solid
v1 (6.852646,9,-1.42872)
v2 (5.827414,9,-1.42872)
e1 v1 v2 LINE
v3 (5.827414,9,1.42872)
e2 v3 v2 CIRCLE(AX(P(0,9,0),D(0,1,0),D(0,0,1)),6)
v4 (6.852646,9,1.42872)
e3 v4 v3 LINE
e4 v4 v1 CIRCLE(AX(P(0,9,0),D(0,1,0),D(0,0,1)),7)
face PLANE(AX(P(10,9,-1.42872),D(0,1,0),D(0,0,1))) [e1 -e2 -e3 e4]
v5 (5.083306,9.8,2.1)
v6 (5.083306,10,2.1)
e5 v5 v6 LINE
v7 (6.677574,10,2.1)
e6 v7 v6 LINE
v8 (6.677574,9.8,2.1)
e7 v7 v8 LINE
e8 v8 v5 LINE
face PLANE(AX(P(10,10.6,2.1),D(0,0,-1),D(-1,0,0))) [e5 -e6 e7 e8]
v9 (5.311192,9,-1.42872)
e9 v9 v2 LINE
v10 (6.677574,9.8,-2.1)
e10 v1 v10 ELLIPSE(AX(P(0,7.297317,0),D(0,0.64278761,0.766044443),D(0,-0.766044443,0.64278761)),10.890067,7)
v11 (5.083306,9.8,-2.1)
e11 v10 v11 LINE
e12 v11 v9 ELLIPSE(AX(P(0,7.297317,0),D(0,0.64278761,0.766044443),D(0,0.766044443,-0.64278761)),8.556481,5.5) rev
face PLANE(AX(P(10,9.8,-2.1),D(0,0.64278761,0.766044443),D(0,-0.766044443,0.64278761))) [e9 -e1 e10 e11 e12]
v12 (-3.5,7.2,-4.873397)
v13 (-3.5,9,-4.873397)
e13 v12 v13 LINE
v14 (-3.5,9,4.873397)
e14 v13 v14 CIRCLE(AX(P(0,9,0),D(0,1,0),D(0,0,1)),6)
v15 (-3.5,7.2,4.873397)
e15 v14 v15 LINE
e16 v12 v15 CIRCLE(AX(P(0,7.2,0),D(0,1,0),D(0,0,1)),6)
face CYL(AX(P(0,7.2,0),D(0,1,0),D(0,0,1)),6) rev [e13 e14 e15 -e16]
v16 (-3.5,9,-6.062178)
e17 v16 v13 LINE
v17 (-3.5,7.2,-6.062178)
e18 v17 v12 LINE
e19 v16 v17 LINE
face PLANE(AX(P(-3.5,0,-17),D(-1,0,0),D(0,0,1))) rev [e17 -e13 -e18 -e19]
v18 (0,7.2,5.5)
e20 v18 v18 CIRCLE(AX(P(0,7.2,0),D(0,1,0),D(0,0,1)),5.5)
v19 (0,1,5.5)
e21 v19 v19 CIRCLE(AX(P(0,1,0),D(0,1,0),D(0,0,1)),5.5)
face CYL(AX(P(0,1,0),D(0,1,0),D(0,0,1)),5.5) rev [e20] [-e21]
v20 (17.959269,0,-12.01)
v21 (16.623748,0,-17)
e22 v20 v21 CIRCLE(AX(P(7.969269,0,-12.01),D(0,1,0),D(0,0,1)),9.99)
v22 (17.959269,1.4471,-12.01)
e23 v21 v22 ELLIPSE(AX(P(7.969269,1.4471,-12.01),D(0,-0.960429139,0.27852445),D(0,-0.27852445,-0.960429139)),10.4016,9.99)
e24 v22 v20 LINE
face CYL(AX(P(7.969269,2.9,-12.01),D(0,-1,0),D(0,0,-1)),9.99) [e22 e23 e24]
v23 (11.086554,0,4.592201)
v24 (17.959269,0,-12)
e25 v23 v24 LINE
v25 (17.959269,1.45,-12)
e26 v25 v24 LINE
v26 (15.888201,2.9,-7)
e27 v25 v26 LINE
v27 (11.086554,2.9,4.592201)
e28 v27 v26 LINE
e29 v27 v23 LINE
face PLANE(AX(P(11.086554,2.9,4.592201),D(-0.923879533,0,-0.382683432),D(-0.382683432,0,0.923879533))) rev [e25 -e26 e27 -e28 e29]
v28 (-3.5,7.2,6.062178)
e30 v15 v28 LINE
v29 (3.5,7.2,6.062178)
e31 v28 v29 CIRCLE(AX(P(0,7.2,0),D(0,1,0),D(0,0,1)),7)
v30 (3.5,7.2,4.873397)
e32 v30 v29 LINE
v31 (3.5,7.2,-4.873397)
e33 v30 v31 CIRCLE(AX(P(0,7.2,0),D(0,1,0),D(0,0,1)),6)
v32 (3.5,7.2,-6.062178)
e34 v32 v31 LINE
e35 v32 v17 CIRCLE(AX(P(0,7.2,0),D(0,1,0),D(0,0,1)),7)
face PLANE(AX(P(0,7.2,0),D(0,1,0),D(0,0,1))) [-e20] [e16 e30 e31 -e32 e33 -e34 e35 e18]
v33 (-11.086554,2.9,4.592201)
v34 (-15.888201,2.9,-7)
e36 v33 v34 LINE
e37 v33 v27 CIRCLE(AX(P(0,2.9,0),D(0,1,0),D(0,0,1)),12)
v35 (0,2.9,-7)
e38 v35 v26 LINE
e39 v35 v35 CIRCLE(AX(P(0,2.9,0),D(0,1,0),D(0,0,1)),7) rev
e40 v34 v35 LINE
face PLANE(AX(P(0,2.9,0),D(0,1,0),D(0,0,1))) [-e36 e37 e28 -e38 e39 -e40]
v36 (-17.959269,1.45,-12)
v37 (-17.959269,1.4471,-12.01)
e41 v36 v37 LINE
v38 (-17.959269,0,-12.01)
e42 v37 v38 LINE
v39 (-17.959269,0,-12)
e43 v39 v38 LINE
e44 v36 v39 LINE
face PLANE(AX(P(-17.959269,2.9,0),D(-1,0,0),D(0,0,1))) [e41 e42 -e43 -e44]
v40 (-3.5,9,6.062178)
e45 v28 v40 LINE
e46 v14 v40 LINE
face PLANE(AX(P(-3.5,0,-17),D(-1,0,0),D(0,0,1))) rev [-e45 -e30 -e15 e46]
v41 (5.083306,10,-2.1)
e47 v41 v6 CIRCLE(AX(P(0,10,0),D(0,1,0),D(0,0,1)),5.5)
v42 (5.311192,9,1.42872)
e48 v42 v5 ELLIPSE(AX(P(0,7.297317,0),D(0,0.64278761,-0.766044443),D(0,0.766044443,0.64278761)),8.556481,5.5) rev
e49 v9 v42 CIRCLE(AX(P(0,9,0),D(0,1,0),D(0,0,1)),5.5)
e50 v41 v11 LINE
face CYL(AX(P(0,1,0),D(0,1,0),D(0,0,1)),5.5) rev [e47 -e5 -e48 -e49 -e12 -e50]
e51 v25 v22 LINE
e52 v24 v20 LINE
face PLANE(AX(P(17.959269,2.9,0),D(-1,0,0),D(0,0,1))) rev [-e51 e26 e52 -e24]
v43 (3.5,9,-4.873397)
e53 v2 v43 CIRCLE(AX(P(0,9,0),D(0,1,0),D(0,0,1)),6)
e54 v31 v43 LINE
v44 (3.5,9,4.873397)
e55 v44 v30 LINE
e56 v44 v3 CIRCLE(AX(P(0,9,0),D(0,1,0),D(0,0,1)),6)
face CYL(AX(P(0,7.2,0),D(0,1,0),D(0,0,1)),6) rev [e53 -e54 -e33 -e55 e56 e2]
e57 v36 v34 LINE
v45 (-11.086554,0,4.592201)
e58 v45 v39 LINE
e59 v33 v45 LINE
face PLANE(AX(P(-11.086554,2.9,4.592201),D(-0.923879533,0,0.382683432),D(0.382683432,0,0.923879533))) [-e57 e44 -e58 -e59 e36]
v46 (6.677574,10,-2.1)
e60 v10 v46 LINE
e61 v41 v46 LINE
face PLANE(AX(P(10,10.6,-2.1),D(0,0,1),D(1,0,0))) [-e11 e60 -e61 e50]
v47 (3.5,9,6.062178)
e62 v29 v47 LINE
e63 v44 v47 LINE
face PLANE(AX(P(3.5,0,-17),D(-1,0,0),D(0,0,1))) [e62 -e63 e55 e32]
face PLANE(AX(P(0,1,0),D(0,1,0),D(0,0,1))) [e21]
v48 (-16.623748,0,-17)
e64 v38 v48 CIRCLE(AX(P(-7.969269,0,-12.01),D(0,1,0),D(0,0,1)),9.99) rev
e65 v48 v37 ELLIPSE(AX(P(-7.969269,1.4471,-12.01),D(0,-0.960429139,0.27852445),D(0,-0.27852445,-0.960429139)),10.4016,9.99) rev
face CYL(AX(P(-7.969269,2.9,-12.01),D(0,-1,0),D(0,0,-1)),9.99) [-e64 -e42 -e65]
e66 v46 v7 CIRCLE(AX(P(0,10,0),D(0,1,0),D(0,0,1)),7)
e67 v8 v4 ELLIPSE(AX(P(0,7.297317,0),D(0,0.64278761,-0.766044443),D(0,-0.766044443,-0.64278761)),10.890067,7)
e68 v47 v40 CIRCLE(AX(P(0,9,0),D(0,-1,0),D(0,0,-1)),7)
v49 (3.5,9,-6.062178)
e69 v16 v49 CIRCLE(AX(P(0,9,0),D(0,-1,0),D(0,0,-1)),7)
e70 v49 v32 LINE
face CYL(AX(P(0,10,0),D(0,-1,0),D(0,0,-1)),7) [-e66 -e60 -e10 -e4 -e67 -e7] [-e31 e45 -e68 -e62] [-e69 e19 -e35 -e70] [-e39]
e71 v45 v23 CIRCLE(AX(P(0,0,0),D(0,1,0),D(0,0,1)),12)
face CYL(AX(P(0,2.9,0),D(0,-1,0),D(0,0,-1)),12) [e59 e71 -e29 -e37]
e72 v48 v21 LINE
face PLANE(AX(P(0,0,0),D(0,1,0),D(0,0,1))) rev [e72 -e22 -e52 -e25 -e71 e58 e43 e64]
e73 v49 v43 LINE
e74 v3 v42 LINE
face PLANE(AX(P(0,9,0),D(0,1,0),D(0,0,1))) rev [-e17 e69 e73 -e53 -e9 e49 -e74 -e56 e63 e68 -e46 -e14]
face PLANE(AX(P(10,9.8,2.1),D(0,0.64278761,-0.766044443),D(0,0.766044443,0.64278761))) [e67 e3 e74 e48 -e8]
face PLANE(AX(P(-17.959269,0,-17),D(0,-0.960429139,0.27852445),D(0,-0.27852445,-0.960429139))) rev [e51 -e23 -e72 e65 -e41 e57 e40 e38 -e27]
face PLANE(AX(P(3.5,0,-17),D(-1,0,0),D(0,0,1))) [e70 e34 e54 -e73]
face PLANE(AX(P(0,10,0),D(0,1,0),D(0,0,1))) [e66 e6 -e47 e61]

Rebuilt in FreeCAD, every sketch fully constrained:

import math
import FreeCAD as App
import Part
import Sketcher

V = App.Vector
Q = App.Units.Quantity


def add_polygon(sketch, points):
    """Adds a closed chain of lines whose ends are joined by coincident constraints."""
    first, n = sketch.GeometryCount, len(points)
    for a, b in zip(points, points[1:] + points[:1]):
        sketch.addGeometry(Part.LineSegment(App.Vector(*a, 0), App.Vector(*b, 0)), False)
    for i in range(n):
        sketch.addConstraint(Sketcher.Constraint("Coincident", first + i, 2, first + (i + 1) % n, 1))

doc = App.newDocument("Part")
params = doc.addObject("Spreadsheet::Sheet", "Params")
for row, (alias, value) in enumerate([
    ("sketch1_radius", "12 mm"),
    ("sketch1_radius2", "9.99 mm"),
    ("sketch1_height", "0.01 mm"),
    ("pad1_length", "2.9 mm"),
    ("sketch2_diameter", "14 mm"),
    ("pad2_length", "10 mm"),
    ("sketch3_diameter", "11 mm"),
    ("pocket1_length", "9 mm"),
    ("sketch4_diameter", "12 mm"),
    ("sketch4_diameter2", "11 mm"),
    ("pocket2_length", "1.8 mm"),
    ("sketch5_width", "7 mm"),
    ("sketch5_height", "1.8 mm"),
    ("sketch6_height", "10 mm"),
    ("sketch6_width", "2.9 mm"),
    ("sketch7_width", "0.8 mm"),
    ("sketch7_height", "4.2 mm"),
    ("pocket5_length", "10 mm"),
], start=1):
    params.set(f"A{row}", alias)
    params.set(f"B{row}", "=" + value)
    params.setAlias(f"B{row}", alias)

body = doc.addObject("PartDesign::Body", "Body")

# Sketch on XZ plane
sketch1 = doc.addObject("Sketcher::SketchObject", "Sketch")
body.addObject(sketch1)
sketch1.AttachmentSupport = (doc.XZ_Plane, [""])
sketch1.MapMode = "FlatFace"
sketch1.addGeometry(Part.LineSegment(V(-17.959, -12, 0), V(-11.087, 4.592, 0)), False)
sketch1.addGeometry(Part.ArcOfCircle(Part.Circle(V(0, 0, 0), V(0, 0, 1), 12), math.radians(22), math.radians(157)), False)
sketch1.addGeometry(Part.LineSegment(V(11.087, 4.592, 0), V(17.959, -12, 0)), False)
sketch1.addGeometry(Part.LineSegment(V(17.959, -12, 0), V(17.959, -12.01, 0)), False)
sketch1.addGeometry(Part.ArcOfCircle(Part.Circle(V(7.969, -12.01, 0), V(0, 0, 1), 9.99), math.radians(-30), math.radians(0)), False)
sketch1.addGeometry(Part.LineSegment(V(16.624, -17, 0), V(-16.624, -17, 0)), False)
sketch1.addGeometry(Part.ArcOfCircle(Part.Circle(V(-7.969, -12.01, 0), V(0, 0, 1), 9.99), math.radians(180), math.radians(210)), False)
sketch1.addGeometry(Part.LineSegment(V(-17.959, -12.01, 0), V(-17.959, -12, 0)), False)
sketch1.addConstraint(Sketcher.Constraint("Tangent", 0, 2, 1, 2))
sketch1.addConstraint(Sketcher.Constraint("Tangent", 1, 1, 2, 1))
sketch1.addConstraint(Sketcher.Constraint("Coincident", 2, 2, 3, 1))
sketch1.addConstraint(Sketcher.Constraint("Tangent", 3, 2, 4, 2))
sketch1.addConstraint(Sketcher.Constraint("Coincident", 4, 1, 5, 1))
sketch1.addConstraint(Sketcher.Constraint("Coincident", 5, 2, 6, 2))
sketch1.addConstraint(Sketcher.Constraint("Tangent", 6, 1, 7, 1))
sketch1.addConstraint(Sketcher.Constraint("Coincident", 7, 2, 0, 1))
sketch1.addConstraint(Sketcher.Constraint("Horizontal", 5))
sketch1.addConstraint(Sketcher.Constraint("Coincident", 1, 3, -1, 1))
sketch1.addConstraint(Sketcher.Constraint("Equal", 4, 6))
sketch1.addConstraint(Sketcher.Constraint("Symmetric", 4, 3, 6, 3, -2))
sketch1.addConstraint(Sketcher.Constraint("Horizontal", 0, 2, 1, 1))
sketch1.addConstraint(Sketcher.Constraint("Horizontal", 6, 3, 3, 2))
sketch1.addConstraint(Sketcher.Constraint("Horizontal", 3, 2, 6, 1))
sketch1.addConstraint(Sketcher.Constraint("Radius", 1, Q("12 mm")))
sketch1.addConstraint(Sketcher.Constraint("Radius", 4, Q("9.99 mm")))
sketch1.addConstraint(Sketcher.Constraint("DistanceY", 2, 2, -1, 1, Q("12 mm")))
sketch1.addConstraint(Sketcher.Constraint("DistanceY", 4, 1, -1, 1, Q("17 mm")))
sketch1.addConstraint(Sketcher.Constraint("Angle", 0, Q("67.5 deg")))
sketch1.addConstraint(Sketcher.Constraint("DistanceY", 3, 2, 3, 1, Q("0.01 mm")))
sketch1.setExpression("Constraints[15]", "Params.sketch1_radius")
sketch1.setExpression("Constraints[16]", "Params.sketch1_radius2")
sketch1.setExpression("Constraints[20]", "Params.sketch1_height")
pad1 = doc.addObject("PartDesign::Pad", "Pad")
body.addObject(pad1)
pad1.Profile = sketch1
pad1.setExpression("Length", "Params.pad1_length")
pad1.Reversed = True

# Sketch on XZ plane
sketch2 = doc.addObject("Sketcher::SketchObject", "Sketch001")
body.addObject(sketch2)
sketch2.AttachmentSupport = (doc.XZ_Plane, [""])
sketch2.MapMode = "FlatFace"
sketch2.addGeometry(Part.Circle(V(0, 0, 0), V(0, 0, 1), 7), False)
sketch2.addConstraint(Sketcher.Constraint("Coincident", 0, 3, -1, 1))
sketch2.addConstraint(Sketcher.Constraint("Diameter", 0, Q("14 mm")))
sketch2.setExpression("Constraints[1]", "Params.sketch2_diameter")
pad2 = doc.addObject("PartDesign::Pad", "Pad001")
body.addObject(pad2)
pad2.Profile = sketch2
pad2.setExpression("Length", "Params.pad2_length")
pad2.Reversed = True

# Sketch on XZ plane
sketch3 = doc.addObject("Sketcher::SketchObject", "Sketch002")
body.addObject(sketch3)
sketch3.AttachmentSupport = (doc.XZ_Plane, [""])
sketch3.MapMode = "FlatFace"
sketch3.AttachmentOffset = App.Placement(V(0, 0, -10), App.Rotation())
sketch3.addGeometry(Part.Circle(V(0, 0, 0), V(0, 0, 1), 6), False)
sketch3.addConstraint(Sketcher.Constraint("Coincident", 0, 3, -1, 1))
sketch3.addConstraint(Sketcher.Constraint("Diameter", 0, Q("11 mm")))
sketch3.setExpression("Constraints[1]", "Params.sketch3_diameter")
pocket1 = doc.addObject("PartDesign::Pocket", "Pocket")
body.addObject(pocket1)
pocket1.Profile = sketch3
pocket1.setExpression("Length", "Params.pocket1_length")
pocket1.Reversed = True

# Sketch on XZ plane
sketch4 = doc.addObject("Sketcher::SketchObject", "Sketch003")
body.addObject(sketch4)
sketch4.AttachmentSupport = (doc.XZ_Plane, [""])
sketch4.MapMode = "FlatFace"
sketch4.AttachmentOffset = App.Placement(V(0, 0, -9), App.Rotation())
sketch4.addGeometry(Part.Circle(V(0, 0, 0), V(0, 0, 1), 6), False)
sketch4.addGeometry(Part.Circle(V(0, 0, 0), V(0, 0, 1), 6), False)
sketch4.addConstraint(Sketcher.Constraint("Coincident", 0, 3, -1, 1))
sketch4.addConstraint(Sketcher.Constraint("Coincident", 1, 3, -1, 1))
sketch4.addConstraint(Sketcher.Constraint("Diameter", 0, Q("12 mm")))
sketch4.addConstraint(Sketcher.Constraint("Diameter", 1, Q("11 mm")))
sketch4.setExpression("Constraints[2]", "Params.sketch4_diameter")
sketch4.setExpression("Constraints[3]", "Params.sketch4_diameter2")
pocket2 = doc.addObject("PartDesign::Pocket", "Pocket001")
body.addObject(pocket2)
pocket2.Profile = sketch4
pocket2.setExpression("Length", "Params.pocket2_length")
pocket2.Reversed = True

# Sketch on XY plane
sketch5 = doc.addObject("Sketcher::SketchObject", "Sketch004")
body.addObject(sketch5)
sketch5.AttachmentSupport = (doc.XY_Plane, [""])
sketch5.MapMode = "FlatFace"
add_polygon(sketch5, [(-3.5, 9), (-3.5, 7.2), (3.5, 7.2), (3.5, 9)])  # lines 0-3
sketch5.addConstraint(Sketcher.Constraint("Vertical", 0))
sketch5.addConstraint(Sketcher.Constraint("Horizontal", 1))
sketch5.addConstraint(Sketcher.Constraint("Vertical", 2))
sketch5.addConstraint(Sketcher.Constraint("Horizontal", 3))
sketch5.addConstraint(Sketcher.Constraint("DistanceX", 1, 1, 1, 2, Q("7 mm")))
sketch5.addConstraint(Sketcher.Constraint("DistanceY", 0, 2, 0, 1, Q("1.8 mm")))
sketch5.addConstraint(Sketcher.Constraint("DistanceY", -1, 1, 2, 2, Q("9 mm")))
sketch5.addConstraint(Sketcher.Constraint("DistanceX", 0, 2, -1, 1, Q("3.5 mm")))
sketch5.setExpression("Constraints[8]", "Params.sketch5_width")
sketch5.setExpression("Constraints[9]", "Params.sketch5_height")
pocket3 = doc.addObject("PartDesign::Pocket", "Pocket002")
body.addObject(pocket3)
pocket3.Profile = sketch5
pocket3.Type = "ThroughAll"
pocket3.Midplane = True

# Sketch on YZ plane
sketch6 = doc.addObject("Sketcher::SketchObject", "Sketch005")
body.addObject(sketch6)
sketch6.AttachmentSupport = (doc.YZ_Plane, [""])
sketch6.MapMode = "FlatFace"
add_polygon(sketch6, [(2.9, -7), (0, -17), (2.9, -17)])  # lines 0-2
sketch6.addConstraint(Sketcher.Constraint("Horizontal", 1))
sketch6.addConstraint(Sketcher.Constraint("Vertical", 2))
sketch6.addConstraint(Sketcher.Constraint("PointOnObject", 0, 2, -2))
sketch6.addConstraint(Sketcher.Constraint("DistanceY", 2, 1, 2, 2, Q("10 mm")))
sketch6.addConstraint(Sketcher.Constraint("DistanceX", 1, 1, 1, 2, Q("2.9 mm")))
sketch6.addConstraint(Sketcher.Constraint("DistanceY", 0, 2, -1, 1, Q("17 mm")))
sketch6.setExpression("Constraints[6]", "Params.sketch6_height")
sketch6.setExpression("Constraints[7]", "Params.sketch6_width")
pocket4 = doc.addObject("PartDesign::Pocket", "Pocket003")
body.addObject(pocket4)
pocket4.Profile = sketch6
pocket4.Type = "ThroughAll"
pocket4.Midplane = True

# Sketch on YZ plane
sketch7 = doc.addObject("Sketcher::SketchObject", "Sketch006")
body.addObject(sketch7)
sketch7.AttachmentSupport = (doc.YZ_Plane, [""])
sketch7.MapMode = "FlatFace"
add_polygon(sketch7, [(10.6, -2.1), (10.6, 2.1), (9.8, 2.1), (9, 1.4), (9, -1.4), (9.8, -2.1)])  # lines 0-5
sketch7.addConstraint(Sketcher.Constraint("Vertical", 0))
sketch7.addConstraint(Sketcher.Constraint("Horizontal", 1))
sketch7.addConstraint(Sketcher.Constraint("Vertical", 3))
sketch7.addConstraint(Sketcher.Constraint("Horizontal", 5))
sketch7.addConstraint(Sketcher.Constraint("Symmetric", 1, 2, 4, 2, -1))
sketch7.addConstraint(Sketcher.Constraint("Equal", 2, 4))
sketch7.addConstraint(Sketcher.Constraint("Angle", 2, Q("-140 deg")))
sketch7.addConstraint(Sketcher.Constraint("DistanceX", 1, 2, 1, 1, Q("0.8 mm")))
sketch7.addConstraint(Sketcher.Constraint("DistanceY", 0, 1, 0, 2, Q("4.2 mm")))
sketch7.addConstraint(Sketcher.Constraint("DistanceX", -1, 1, 2, 2, Q("9 mm")))
sketch7.addConstraint(Sketcher.Constraint("DistanceX", -1, 1, 0, 2, Q("10.6 mm")))
sketch7.setExpression("Constraints[13]", "Params.sketch7_width")
sketch7.setExpression("Constraints[14]", "Params.sketch7_height")
pocket5 = doc.addObject("PartDesign::Pocket", "Pocket004")
body.addObject(pocket5)
pocket5.Profile = sketch7
pocket5.setExpression("Length", "Params.pocket5_length")
pocket5.Reversed = True

doc.recompute()
